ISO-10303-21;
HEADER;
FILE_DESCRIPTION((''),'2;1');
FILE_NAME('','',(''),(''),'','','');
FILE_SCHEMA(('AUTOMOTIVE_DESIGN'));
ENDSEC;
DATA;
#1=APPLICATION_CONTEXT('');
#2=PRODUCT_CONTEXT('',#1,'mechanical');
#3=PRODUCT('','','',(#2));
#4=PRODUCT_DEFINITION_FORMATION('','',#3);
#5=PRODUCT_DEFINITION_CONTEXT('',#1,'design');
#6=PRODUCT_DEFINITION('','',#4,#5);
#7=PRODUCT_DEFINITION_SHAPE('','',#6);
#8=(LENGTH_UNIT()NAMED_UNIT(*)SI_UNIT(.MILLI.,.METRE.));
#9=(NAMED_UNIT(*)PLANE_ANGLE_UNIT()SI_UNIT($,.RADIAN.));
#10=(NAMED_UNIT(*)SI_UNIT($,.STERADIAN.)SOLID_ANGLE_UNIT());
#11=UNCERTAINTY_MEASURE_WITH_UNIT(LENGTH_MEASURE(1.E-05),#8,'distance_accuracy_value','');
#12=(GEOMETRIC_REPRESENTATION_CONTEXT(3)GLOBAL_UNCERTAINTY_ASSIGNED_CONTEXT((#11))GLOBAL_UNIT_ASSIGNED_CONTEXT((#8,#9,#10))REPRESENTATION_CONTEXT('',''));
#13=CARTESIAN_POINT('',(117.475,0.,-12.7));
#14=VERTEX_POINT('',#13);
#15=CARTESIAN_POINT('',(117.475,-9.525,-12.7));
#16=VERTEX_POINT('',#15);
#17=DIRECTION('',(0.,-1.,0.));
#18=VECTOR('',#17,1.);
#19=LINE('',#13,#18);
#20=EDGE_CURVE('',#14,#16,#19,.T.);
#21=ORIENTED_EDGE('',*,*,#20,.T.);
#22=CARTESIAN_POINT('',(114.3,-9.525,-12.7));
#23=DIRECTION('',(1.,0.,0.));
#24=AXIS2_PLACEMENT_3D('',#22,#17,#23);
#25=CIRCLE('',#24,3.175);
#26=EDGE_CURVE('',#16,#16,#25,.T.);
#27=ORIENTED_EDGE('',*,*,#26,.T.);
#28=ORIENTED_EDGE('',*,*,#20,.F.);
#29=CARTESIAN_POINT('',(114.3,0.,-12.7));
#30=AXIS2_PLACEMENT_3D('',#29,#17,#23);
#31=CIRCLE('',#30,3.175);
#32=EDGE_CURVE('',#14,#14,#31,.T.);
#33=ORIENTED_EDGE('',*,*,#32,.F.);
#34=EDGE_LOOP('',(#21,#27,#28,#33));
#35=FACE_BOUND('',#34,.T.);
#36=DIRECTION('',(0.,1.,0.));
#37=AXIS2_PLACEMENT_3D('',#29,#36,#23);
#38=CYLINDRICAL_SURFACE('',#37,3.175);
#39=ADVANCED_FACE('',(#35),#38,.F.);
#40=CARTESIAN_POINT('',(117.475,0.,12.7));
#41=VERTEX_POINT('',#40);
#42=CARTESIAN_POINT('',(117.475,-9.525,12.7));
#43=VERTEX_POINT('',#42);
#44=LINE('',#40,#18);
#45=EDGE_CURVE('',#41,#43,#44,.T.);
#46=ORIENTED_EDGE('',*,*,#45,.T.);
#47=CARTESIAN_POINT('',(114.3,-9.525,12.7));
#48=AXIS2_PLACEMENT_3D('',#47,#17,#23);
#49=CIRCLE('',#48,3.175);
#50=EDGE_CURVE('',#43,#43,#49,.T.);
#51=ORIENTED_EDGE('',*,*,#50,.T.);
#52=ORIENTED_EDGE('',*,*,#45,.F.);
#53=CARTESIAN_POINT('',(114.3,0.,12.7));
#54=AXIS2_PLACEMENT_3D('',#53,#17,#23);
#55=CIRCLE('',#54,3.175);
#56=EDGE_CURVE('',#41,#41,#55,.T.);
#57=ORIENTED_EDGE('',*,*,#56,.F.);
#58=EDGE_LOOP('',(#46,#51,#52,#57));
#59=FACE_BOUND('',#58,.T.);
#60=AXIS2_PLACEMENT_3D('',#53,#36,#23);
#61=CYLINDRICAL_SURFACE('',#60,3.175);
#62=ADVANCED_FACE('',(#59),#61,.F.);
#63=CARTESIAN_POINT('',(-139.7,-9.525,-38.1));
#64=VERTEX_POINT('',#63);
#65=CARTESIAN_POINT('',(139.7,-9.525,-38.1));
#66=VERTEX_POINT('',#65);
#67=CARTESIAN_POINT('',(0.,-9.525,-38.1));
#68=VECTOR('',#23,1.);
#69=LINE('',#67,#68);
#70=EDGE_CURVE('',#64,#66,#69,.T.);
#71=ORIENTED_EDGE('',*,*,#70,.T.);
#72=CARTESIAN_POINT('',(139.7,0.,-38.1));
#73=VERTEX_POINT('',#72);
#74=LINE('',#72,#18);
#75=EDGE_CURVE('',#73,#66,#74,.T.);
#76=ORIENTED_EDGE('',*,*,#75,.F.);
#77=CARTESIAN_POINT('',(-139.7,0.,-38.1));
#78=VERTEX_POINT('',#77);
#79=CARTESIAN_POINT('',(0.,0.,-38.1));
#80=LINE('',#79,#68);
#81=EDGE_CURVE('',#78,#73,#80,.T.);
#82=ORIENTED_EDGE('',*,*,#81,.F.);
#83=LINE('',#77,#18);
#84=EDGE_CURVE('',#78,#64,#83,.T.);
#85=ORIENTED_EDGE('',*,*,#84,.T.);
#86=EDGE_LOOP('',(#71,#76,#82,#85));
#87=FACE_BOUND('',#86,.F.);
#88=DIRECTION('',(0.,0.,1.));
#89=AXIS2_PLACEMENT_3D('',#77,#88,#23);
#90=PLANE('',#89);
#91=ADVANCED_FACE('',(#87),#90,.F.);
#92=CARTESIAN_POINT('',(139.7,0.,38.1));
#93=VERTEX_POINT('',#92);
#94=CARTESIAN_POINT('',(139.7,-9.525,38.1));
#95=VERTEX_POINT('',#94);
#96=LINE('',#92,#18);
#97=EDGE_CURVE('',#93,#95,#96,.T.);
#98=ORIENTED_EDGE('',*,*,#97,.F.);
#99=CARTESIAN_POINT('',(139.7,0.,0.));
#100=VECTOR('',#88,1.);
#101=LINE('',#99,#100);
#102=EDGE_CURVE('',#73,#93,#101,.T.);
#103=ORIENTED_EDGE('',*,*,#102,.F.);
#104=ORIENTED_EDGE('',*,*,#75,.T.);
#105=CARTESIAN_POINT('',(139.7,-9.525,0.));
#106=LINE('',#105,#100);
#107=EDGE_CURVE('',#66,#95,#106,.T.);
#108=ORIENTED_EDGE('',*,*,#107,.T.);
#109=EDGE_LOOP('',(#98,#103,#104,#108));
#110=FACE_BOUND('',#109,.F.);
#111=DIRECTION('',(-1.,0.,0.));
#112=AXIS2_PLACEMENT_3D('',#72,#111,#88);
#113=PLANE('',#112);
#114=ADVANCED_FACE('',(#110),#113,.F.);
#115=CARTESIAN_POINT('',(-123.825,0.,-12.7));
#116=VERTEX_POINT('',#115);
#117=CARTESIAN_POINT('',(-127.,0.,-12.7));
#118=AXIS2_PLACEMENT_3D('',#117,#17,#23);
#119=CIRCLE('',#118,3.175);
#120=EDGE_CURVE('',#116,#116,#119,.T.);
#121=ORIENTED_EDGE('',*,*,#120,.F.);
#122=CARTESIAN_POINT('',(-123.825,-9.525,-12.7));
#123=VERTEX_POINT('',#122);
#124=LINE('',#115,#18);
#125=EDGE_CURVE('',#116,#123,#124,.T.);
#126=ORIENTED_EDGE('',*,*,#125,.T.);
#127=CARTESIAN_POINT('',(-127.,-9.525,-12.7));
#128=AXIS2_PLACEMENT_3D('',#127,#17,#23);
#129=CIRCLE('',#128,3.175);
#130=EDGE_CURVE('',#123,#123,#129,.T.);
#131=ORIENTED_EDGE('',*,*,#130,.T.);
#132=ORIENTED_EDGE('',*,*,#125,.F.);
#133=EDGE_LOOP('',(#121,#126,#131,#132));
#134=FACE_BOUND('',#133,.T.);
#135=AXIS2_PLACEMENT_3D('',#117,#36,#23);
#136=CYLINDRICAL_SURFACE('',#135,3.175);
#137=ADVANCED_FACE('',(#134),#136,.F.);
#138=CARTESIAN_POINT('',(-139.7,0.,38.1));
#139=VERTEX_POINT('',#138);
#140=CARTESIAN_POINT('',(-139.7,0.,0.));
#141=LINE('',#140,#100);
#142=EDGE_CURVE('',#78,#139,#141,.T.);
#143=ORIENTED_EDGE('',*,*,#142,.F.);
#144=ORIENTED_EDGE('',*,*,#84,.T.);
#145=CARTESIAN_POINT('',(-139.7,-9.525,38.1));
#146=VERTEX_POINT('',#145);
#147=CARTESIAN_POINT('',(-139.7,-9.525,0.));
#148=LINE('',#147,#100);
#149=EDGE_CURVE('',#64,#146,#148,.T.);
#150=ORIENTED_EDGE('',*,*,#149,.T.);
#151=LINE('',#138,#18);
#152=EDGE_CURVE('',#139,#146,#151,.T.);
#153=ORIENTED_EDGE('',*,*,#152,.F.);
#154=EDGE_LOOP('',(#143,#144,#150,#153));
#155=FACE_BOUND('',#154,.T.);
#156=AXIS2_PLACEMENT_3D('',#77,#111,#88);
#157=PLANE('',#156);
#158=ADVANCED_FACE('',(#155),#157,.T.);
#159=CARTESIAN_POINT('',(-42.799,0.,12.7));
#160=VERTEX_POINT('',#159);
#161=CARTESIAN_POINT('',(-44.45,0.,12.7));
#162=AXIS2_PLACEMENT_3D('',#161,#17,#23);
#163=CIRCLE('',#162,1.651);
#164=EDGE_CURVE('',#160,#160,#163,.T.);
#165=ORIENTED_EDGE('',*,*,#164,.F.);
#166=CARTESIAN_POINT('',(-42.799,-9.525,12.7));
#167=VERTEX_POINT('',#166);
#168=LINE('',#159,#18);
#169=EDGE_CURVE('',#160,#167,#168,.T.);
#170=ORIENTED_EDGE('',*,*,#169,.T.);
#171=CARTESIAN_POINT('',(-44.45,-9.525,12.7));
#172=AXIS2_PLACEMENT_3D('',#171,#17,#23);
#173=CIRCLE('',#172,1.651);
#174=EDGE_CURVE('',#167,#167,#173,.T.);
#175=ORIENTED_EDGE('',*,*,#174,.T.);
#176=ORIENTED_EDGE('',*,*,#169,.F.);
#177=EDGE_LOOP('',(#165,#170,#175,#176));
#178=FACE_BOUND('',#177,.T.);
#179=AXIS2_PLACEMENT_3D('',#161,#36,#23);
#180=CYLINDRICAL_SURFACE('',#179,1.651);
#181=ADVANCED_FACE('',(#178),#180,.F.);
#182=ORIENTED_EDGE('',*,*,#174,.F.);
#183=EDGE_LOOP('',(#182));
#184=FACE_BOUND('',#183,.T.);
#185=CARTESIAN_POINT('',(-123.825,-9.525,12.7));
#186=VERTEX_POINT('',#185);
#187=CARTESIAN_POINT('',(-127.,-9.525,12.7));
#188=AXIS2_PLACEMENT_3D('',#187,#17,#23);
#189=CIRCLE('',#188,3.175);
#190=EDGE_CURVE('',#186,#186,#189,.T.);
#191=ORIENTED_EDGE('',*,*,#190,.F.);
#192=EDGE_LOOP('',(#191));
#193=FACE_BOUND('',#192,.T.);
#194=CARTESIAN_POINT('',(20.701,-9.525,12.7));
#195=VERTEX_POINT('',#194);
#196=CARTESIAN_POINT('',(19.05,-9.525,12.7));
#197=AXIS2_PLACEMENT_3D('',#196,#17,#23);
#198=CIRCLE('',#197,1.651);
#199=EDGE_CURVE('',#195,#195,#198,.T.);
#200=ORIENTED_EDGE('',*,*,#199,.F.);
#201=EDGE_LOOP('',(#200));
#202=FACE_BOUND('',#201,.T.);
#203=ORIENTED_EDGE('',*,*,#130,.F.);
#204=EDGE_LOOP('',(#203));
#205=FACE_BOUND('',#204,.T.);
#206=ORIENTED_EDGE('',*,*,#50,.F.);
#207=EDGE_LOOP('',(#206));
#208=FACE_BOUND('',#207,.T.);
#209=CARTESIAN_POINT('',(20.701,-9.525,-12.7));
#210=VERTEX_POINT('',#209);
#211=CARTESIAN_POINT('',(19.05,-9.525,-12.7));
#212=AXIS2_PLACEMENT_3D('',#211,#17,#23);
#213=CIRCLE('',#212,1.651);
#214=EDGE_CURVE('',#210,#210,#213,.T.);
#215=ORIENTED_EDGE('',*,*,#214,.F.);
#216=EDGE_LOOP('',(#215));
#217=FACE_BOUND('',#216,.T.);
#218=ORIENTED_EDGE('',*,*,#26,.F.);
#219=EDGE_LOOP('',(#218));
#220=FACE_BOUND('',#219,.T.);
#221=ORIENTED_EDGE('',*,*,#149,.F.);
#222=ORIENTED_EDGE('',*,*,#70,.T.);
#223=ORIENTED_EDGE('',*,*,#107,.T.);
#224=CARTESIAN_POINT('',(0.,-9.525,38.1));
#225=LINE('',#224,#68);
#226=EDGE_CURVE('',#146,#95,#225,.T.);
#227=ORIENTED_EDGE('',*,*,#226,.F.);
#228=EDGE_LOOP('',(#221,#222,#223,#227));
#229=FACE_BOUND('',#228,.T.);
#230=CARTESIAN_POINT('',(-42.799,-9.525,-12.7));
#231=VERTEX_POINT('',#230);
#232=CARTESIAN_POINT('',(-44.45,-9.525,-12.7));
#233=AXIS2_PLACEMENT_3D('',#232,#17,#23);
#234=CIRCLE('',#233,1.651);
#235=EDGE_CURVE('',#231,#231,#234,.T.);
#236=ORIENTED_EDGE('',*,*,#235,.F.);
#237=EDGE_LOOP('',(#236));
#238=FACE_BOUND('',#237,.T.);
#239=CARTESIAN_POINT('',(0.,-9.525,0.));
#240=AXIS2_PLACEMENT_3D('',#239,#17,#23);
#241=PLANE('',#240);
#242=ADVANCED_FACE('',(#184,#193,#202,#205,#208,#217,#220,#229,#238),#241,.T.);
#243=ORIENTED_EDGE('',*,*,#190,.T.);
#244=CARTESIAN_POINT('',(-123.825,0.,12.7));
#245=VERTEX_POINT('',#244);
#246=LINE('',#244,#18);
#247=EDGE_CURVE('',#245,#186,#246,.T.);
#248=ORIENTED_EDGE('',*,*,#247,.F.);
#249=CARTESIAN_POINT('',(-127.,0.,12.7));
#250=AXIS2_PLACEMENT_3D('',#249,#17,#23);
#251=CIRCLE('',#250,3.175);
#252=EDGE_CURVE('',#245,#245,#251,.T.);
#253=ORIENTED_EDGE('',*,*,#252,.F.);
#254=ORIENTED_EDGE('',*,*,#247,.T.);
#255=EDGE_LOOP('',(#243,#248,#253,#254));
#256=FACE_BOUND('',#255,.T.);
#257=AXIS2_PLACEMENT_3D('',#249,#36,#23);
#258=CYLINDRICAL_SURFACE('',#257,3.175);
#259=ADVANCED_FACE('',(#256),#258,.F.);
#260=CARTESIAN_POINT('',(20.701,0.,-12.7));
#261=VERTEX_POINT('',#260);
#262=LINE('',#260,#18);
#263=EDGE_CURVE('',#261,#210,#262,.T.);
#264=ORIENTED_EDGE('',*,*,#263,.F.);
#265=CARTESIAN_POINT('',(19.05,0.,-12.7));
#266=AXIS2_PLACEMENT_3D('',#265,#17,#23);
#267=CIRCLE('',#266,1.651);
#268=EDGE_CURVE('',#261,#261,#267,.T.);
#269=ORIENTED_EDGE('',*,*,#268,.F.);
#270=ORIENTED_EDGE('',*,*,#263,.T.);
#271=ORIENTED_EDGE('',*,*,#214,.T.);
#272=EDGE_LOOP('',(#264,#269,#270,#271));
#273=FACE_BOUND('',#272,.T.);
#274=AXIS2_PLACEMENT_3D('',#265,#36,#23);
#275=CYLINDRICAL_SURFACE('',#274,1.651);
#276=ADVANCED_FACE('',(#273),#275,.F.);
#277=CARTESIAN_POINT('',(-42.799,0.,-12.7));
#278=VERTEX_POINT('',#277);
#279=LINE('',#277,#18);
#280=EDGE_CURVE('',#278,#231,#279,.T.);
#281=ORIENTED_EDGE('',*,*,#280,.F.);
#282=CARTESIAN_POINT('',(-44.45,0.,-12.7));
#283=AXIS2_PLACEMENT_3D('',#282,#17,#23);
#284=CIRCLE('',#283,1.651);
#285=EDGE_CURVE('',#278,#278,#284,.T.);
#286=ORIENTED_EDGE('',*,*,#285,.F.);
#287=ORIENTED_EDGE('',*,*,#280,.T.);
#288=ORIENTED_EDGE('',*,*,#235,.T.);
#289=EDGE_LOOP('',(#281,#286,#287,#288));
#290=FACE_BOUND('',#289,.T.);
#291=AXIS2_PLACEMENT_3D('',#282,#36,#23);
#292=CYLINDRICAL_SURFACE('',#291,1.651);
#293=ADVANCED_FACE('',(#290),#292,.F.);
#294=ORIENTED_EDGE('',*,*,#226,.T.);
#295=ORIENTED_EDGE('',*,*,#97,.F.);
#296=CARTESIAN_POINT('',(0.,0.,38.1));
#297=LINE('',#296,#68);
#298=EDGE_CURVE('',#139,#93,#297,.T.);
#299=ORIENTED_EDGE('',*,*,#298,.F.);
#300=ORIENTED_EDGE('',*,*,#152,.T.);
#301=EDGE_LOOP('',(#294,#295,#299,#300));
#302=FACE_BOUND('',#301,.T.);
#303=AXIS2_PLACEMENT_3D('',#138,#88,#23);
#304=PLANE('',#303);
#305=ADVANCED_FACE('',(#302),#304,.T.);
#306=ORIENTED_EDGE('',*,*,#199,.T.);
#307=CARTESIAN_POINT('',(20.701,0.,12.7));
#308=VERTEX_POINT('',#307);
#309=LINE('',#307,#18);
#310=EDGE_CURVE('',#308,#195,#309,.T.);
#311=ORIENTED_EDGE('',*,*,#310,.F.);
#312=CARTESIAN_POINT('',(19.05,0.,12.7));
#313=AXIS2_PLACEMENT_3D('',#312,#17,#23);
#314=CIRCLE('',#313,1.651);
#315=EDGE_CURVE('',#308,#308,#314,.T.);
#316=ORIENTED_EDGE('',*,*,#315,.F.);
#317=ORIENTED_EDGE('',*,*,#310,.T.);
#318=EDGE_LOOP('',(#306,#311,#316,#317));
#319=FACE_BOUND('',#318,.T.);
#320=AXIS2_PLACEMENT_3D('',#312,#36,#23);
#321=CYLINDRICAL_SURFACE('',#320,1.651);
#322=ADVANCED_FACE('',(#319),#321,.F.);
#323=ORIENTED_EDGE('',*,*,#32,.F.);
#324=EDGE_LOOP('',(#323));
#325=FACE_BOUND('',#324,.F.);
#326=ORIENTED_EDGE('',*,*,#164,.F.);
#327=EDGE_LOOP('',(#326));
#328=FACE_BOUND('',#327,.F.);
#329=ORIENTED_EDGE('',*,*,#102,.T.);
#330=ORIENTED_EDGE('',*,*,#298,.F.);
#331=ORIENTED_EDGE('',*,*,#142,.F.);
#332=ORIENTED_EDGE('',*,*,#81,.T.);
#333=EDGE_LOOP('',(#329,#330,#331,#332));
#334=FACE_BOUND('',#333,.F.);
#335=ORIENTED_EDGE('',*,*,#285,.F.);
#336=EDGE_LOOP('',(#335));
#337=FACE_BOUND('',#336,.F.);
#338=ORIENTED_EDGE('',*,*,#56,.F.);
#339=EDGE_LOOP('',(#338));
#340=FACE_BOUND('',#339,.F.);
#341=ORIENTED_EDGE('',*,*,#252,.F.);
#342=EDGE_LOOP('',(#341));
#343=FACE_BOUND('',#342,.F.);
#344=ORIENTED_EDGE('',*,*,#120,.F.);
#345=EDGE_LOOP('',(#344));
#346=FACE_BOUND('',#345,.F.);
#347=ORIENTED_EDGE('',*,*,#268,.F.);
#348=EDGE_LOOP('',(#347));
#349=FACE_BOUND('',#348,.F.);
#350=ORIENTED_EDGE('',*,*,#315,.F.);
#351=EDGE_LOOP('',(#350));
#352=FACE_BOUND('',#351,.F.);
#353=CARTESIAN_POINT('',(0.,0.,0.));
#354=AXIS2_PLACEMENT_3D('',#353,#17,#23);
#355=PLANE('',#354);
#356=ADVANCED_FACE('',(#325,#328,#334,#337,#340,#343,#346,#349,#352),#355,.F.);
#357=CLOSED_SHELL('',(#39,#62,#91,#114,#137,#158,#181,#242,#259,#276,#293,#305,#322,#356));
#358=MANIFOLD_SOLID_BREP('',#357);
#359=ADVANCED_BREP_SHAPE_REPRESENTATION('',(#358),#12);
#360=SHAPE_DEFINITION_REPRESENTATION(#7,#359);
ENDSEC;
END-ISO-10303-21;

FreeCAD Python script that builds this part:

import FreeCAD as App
import Part
import Sketcher
Q = App.Units.Quantity

doc = App.newDocument("Part")
body = doc.addObject("PartDesign::Body", "Body")

# Sketch on XZ plane
sketch1 = body.newObject("Sketcher::SketchObject", "Sketch")
sketch1.AttachmentSupport = (doc.getObject("XZ_Plane"), [""])
sketch1.MapMode = "FlatFace"
sketch1.addGeometry([
    Part.LineSegment(App.Vector(-139.7, 38.1, 0), App.Vector(-139.7, -38.1, 0)),  # 0
    Part.LineSegment(App.Vector(-139.7, -38.1, 0), App.Vector(139.7, -38.1, 0)),  # 1
    Part.LineSegment(App.Vector(139.7, -38.1, 0), App.Vector(139.7, 38.1, 0)),  # 2
    Part.LineSegment(App.Vector(139.7, 38.1, 0), App.Vector(-139.7, 38.1, 0)),  # 3
    Part.Circle(App.Vector(-127, -12.7, 0), App.Vector(0, 0, 1), 3.2),  # 4
    Part.Circle(App.Vector(-44.5, -12.7, 0), App.Vector(0, 0, 1), 1.7),  # 5
    Part.Circle(App.Vector(19.1, -12.7, 0), App.Vector(0, 0, 1), 1.7),  # 6
    Part.Circle(App.Vector(114.3, -12.7, 0), App.Vector(0, 0, 1), 3.2),  # 7
    Part.Circle(App.Vector(-127, 12.7, 0), App.Vector(0, 0, 1), 3.2),  # 8
    Part.Circle(App.Vector(-44.5, 12.7, 0), App.Vector(0, 0, 1), 1.7),  # 9
    Part.Circle(App.Vector(19.1, 12.7, 0), App.Vector(0, 0, 1), 1.7),  # 10
    Part.Circle(App.Vector(114.3, 12.7, 0), App.Vector(0, 0, 1), 3.2),  # 11
], False)
sketch1.addConstraint([
    Sketcher.Constraint("Coincident", 0, 2, 1, 1),
    Sketcher.Constraint("Coincident", 1, 2, 2, 1),
    Sketcher.Constraint("Coincident", 2, 2, 3, 1),
    Sketcher.Constraint("Coincident", 3, 2, 0, 1),
    Sketcher.Constraint("Vertical", 0),
    Sketcher.Constraint("Horizontal", 1),
    Sketcher.Constraint("Vertical", 2),
    Sketcher.Constraint("Horizontal", 3),
    Sketcher.Constraint("Equal", 5, 6),
    Sketcher.Constraint("Equal", 4, 7),
    Sketcher.Constraint("Equal", 7, 8),
    Sketcher.Constraint("Equal", 6, 9),
    Sketcher.Constraint("Equal", 9, 10),
    Sketcher.Constraint("Equal", 8, 11),
    Sketcher.Constraint("Symmetric", 0, 2, 2, 2, -1, 1),
    Sketcher.Constraint("Symmetric", 4, 3, 8, 3, -1),
    Sketcher.Constraint("Symmetric", 5, 3, 9, 3, -1),
    Sketcher.Constraint("Symmetric", 6, 3, 10, 3, -1),
    Sketcher.Constraint("Symmetric", 7, 3, 11, 3, -1),
    Sketcher.Constraint("Horizontal", 4, 3, 5, 3),
    Sketcher.Constraint("Horizontal", 5, 3, 6, 3),
    Sketcher.Constraint("Horizontal", 6, 3, 7, 3),
    Sketcher.Constraint("Diameter", 4, Q("0.25 in")),
    Sketcher.Constraint("Diameter", 5, Q("0.13 in")),
    Sketcher.Constraint("DistanceX", 1, 1, 1, 2, Q("11 in")),
    Sketcher.Constraint("DistanceY", 0, 2, 0, 1, Q("3 in")),
    Sketcher.Constraint("DistanceX", 4, 3, -1, 1, Q("5 in")),
    Sketcher.Constraint("DistanceY", 4, 3, 8, 3, Q("1 in")),
    Sketcher.Constraint("DistanceX", 7, 3, 1, 2, Q("1 in")),
    Sketcher.Constraint("DistanceX", 5, 3, 6, 3, Q("2.5 in")),
    Sketcher.Constraint("DistanceX", 5, 3, -1, 1, Q("1.75 in")),
])
pad1 = body.newObject("PartDesign::Pad", "Pad")
pad1.Profile = sketch1
pad1.Length = Q("0.375 in")

doc.recompute()
